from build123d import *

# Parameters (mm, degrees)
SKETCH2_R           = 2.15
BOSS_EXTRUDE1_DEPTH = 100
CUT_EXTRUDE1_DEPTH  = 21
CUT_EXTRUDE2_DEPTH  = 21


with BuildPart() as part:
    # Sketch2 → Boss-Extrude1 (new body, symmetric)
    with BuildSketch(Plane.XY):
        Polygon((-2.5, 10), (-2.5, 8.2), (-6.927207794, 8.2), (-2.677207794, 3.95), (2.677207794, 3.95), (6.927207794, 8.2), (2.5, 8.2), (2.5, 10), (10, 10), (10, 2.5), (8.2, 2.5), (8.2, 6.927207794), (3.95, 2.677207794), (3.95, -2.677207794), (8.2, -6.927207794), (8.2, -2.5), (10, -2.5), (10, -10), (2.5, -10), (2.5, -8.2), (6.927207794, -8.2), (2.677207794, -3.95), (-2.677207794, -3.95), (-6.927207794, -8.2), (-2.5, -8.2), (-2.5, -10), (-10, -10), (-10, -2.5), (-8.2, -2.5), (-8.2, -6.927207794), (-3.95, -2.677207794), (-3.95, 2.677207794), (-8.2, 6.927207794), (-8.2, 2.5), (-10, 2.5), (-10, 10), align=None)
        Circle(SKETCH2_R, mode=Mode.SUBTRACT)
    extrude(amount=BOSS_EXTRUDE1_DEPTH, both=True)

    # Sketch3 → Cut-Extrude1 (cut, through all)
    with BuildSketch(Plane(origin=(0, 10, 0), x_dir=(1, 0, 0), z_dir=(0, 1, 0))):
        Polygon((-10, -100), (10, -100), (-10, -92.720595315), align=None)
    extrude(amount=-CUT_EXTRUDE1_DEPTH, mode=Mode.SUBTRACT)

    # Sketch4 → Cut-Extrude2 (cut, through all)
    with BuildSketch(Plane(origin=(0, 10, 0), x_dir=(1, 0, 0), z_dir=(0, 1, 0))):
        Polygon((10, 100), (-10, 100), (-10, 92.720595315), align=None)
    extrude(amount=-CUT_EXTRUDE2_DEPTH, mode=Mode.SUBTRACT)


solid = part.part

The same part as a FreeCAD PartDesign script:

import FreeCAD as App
import Part
import Sketcher
Q = App.Units.Quantity

doc = App.newDocument("Part")
params = doc.addObject("Spreadsheet::Sheet", "Params")
for row, (alias, value) in enumerate([
    ("sketch1_diameter", "4.3 mm"),
    ("sketch1_width", "7.5 mm"),
    ("sketch1_width2", "1.8 mm"),
    ("pad1_length", "200 mm"),
    ("sketch2_width", "20 mm"),
    ("sketch3_width", "20 mm"),
], start=1):
    params.set(f"A{row}", alias)
    params.set(f"B{row}", "=" + value)
    params.setAlias(f"B{row}", alias)

body = doc.addObject("PartDesign::Body", "Body")

sketch1 = body.newObject("Sketcher::SketchObject", "Sketch")
sketch1.AttachmentSupport = (doc.getObject("XY_Plane"), [""])
sketch1.MapMode = "FlatFace"
sketch1.addGeometry([
    Part.LineSegment(App.Vector(-2.5, 8.2, 0), App.Vector(-2.5, 10, 0)),
    Part.LineSegment(App.Vector(-2.5, 10, 0), App.Vector(-10, 10, 0)),
    Part.LineSegment(App.Vector(-10, 10, 0), App.Vector(-10, 2.5, 0)),
    Part.LineSegment(App.Vector(-10, 2.5, 0), App.Vector(-8.2, 2.5, 0)),
    Part.LineSegment(App.Vector(-8.2, 2.5, 0), App.Vector(-8.2, 6.9, 0)),
    Part.LineSegment(App.Vector(-8.2, 6.9, 0), App.Vector(-4, 2.7, 0)),
    Part.LineSegment(App.Vector(-4, 2.7, 0), App.Vector(-4, -2.7, 0)),
    Part.LineSegment(App.Vector(-4, -2.7, 0), App.Vector(-8.2, -6.9, 0)),
    Part.LineSegment(App.Vector(-8.2, -6.9, 0), App.Vector(-8.2, -2.5, 0)),
    Part.LineSegment(App.Vector(-8.2, -2.5, 0), App.Vector(-10, -2.5, 0)),
    Part.LineSegment(App.Vector(-10, -2.5, 0), App.Vector(-10, -10, 0)),
    Part.LineSegment(App.Vector(-10, -10, 0), App.Vector(-2.5, -10, 0)),
    Part.LineSegment(App.Vector(-2.5, -10, 0), App.Vector(-2.5, -8.2, 0)),
    Part.LineSegment(App.Vector(-2.5, -8.2, 0), App.Vector(-6.9, -8.2, 0)),
    Part.LineSegment(App.Vector(-6.9, -8.2, 0), App.Vector(-2.7, -4, 0)),
    Part.LineSegment(App.Vector(-2.7, -4, 0), App.Vector(2.7, -4, 0)),
    Part.LineSegment(App.Vector(2.7, -4, 0), App.Vector(6.9, -8.2, 0)),
    Part.LineSegment(App.Vector(6.9, -8.2, 0), App.Vector(2.5, -8.2, 0)),
    Part.LineSegment(App.Vector(2.5, -8.2, 0), App.Vector(2.5, -10, 0)),
    Part.LineSegment(App.Vector(2.5, -10, 0), App.Vector(10, -10, 0)),
    Part.LineSegment(App.Vector(10, -10, 0), App.Vector(10, -2.5, 0)),
    Part.LineSegment(App.Vector(10, -2.5, 0), App.Vector(8.2, -2.5, 0)),
    Part.LineSegment(App.Vector(8.2, -2.5, 0), App.Vector(8.2, -6.9, 0)),
    Part.LineSegment(App.Vector(8.2, -6.9, 0), App.Vector(4, -2.7, 0)),
    Part.LineSegment(App.Vector(4, -2.7, 0), App.Vector(4, 2.7, 0)),
    Part.LineSegment(App.Vector(4, 2.7, 0), App.Vector(8.2, 6.9, 0)),
    Part.LineSegment(App.Vector(8.2, 6.9, 0), App.Vector(8.2, 2.5, 0)),
    Part.LineSegment(App.Vector(8.2, 2.5, 0), App.Vector(10, 2.5, 0)),
    Part.LineSegment(App.Vector(10, 2.5, 0), App.Vector(10, 10, 0)),
    Part.LineSegment(App.Vector(10, 10, 0), App.Vector(2.5, 10, 0)),
    Part.LineSegment(App.Vector(2.5, 10, 0), App.Vector(2.5, 8.2, 0)),
    Part.LineSegment(App.Vector(2.5, 8.2, 0), App.Vector(6.9, 8.2, 0)),
    Part.LineSegment(App.Vector(6.9, 8.2, 0), App.Vector(2.7, 4, 0)),
    Part.LineSegment(App.Vector(2.7, 4, 0), App.Vector(-2.7, 4, 0)),
    Part.LineSegment(App.Vector(-2.7, 4, 0), App.Vector(-6.9, 8.2, 0)),
    Part.LineSegment(App.Vector(-6.9, 8.2, 0), App.Vector(-2.5, 8.2, 0)),
    Part.Circle(App.Vector(0, 0, 0), App.Vector(0, 0, 1), 2.1),
], False)
sketch1.addConstraint([
    Sketcher.Constraint("Coincident", 0, 2, 1, 1),
    Sketcher.Constraint("Coincident", 1, 2, 2, 1),
    Sketcher.Constraint("Coincident", 2, 2, 3, 1),
    Sketcher.Constraint("Coincident", 3, 2, 4, 1),
    Sketcher.Constraint("Coincident", 4, 2, 5, 1),
    Sketcher.Constraint("Coincident", 5, 2, 6, 1),
    Sketcher.Constraint("Coincident", 6, 2, 7, 1),
    Sketcher.Constraint("Coincident", 7, 2, 8, 1),
    Sketcher.Constraint("Coincident", 8, 2, 9, 1),
    Sketcher.Constraint("Coincident", 9, 2, 10, 1),
    Sketcher.Constraint("Coincident", 10, 2, 11, 1),
    Sketcher.Constraint("Coincident", 11, 2, 12, 1),
    Sketcher.Constraint("Coincident", 12, 2, 13, 1),
    Sketcher.Constraint("Coincident", 13, 2, 14, 1),
    Sketcher.Constraint("Coincident", 14, 2, 15, 1),
    Sketcher.Constraint("Coincident", 15, 2, 16, 1),
    Sketcher.Constraint("Coincident", 16, 2, 17, 1),
    Sketcher.Constraint("Coincident", 17, 2, 18, 1),
    Sketcher.Constraint("Coincident", 18, 2, 19, 1),
    Sketcher.Constraint("Coincident", 19, 2, 20, 1),
    Sketcher.Constraint("Coincident", 20, 2, 21, 1),
    Sketcher.Constraint("Coincident", 21, 2, 22, 1),
    Sketcher.Constraint("Coincident", 22, 2, 23, 1),
    Sketcher.Constraint("Coincident", 23, 2, 24, 1),
    Sketcher.Constraint("Coincident", 24, 2, 25, 1),
    Sketcher.Constraint("Coincident", 25, 2, 26, 1),
    Sketcher.Constraint("Coincident", 26, 2, 27, 1),
    Sketcher.Constraint("Coincident", 27, 2, 28, 1),
    Sketcher.Constraint("Coincident", 28, 2, 29, 1),
    Sketcher.Constraint("Coincident", 29, 2, 30, 1),
    Sketcher.Constraint("Coincident", 30, 2, 31, 1),
    Sketcher.Constraint("Coincident", 31, 2, 32, 1),
    Sketcher.Constraint("Coincident", 32, 2, 33, 1),
    Sketcher.Constraint("Coincident", 33, 2, 34, 1),
    Sketcher.Constraint("Coincident", 34, 2, 35, 1),
    Sketcher.Constraint("Coincident", 35, 2, 0, 1),
    Sketcher.Constraint("Vertical", 0),
    Sketcher.Constraint("Horizontal", 1),
    Sketcher.Constraint("Vertical", 2),
    Sketcher.Constraint("Horizontal", 3),
    Sketcher.Constraint("Vertical", 4),
    Sketcher.Constraint("Vertical", 6),
    Sketcher.Constraint("Vertical", 8),
    Sketcher.Constraint("Horizontal", 9),
    Sketcher.Constraint("Vertical", 10),
    Sketcher.Constraint("Horizontal", 11),
    Sketcher.Constraint("Vertical", 12),
    Sketcher.Constraint("Horizontal", 13),
    Sketcher.Constraint("Horizontal", 15),
    Sketcher.Constraint("Horizontal", 17),
    Sketcher.Constraint("Vertical", 18),
    Sketcher.Constraint("Horizontal", 19),
    Sketcher.Constraint("Vertical", 20),
    Sketcher.Constraint("Horizontal", 21),
    Sketcher.Constraint("Vertical", 22),
    Sketcher.Constraint("Vertical", 24),
    Sketcher.Constraint("Vertical", 26),
    Sketcher.Constraint("Horizontal", 27),
    Sketcher.Constraint("Vertical", 28),
    Sketcher.Constraint("Horizontal", 29),
    Sketcher.Constraint("Vertical", 30),
    Sketcher.Constraint("Horizontal", 31),
    Sketcher.Constraint("Horizontal", 33),
    Sketcher.Constraint("Horizontal", 35),
    Sketcher.Constraint("Coincident", 36, 3, -1, 1),
    Sketcher.Constraint("Symmetric", 0, 2, 18, 2, -1, 1),
    Sketcher.Constraint("Symmetric", 2, 2, 20, 2, -1, 1),
    Sketcher.Constraint("Symmetric", 4, 2, 22, 2, -1, 1),
    Sketcher.Constraint("Symmetric", 5, 2, 23, 2, -1, 1),
    Sketcher.Constraint("Symmetric", 7, 2, 25, 2, -1, 1),
    Sketcher.Constraint("Symmetric", 9, 2, 27, 2, -1, 1),
    Sketcher.Constraint("Symmetric", 11, 2, 29, 2, -1, 1),
    Sketcher.Constraint("Symmetric", 13, 2, 31, 2, -1, 1),
    Sketcher.Constraint("Symmetric", 14, 2, 32, 2, -1, 1),
    Sketcher.Constraint("Symmetric", 16, 2, 34, 2, -1, 1),
    Sketcher.Constraint("Symmetric", 13, 2, 16, 2, -2),
    Sketcher.Constraint("Symmetric", 11, 2, 18, 2, -2),
    Sketcher.Constraint("Symmetric", 9, 2, 20, 2, -2),
    Sketcher.Constraint("Symmetric", 7, 2, 22, 2, -2),
    Sketcher.Constraint("Perpendicular", 5, 7),
    Sketcher.Constraint("Parallel", 7, 14),
    Sketcher.Constraint("Perpendicular", 14, 16),
    Sketcher.Constraint("Perpendicular", 23, 25),
    Sketcher.Constraint("Perpendicular", 32, 34),
    Sketcher.Constraint("Horizontal", 6, 2, 23, 2),
    Sketcher.Constraint("Equal", 27, 0),
    Sketcher.Constraint("Equal", 29, 2),
    Sketcher.Constraint("Equal", 35, 4),
    Sketcher.Constraint("Equal", 33, 6),
    Sketcher.Constraint("Equal", 7, 14),
    Sketcher.Constraint("Diameter", 36, Q("4.3 mm")),
    Sketcher.Constraint("DistanceX", 1, 2, 1, 1, Q("7.5 mm")),
    Sketcher.Constraint("DistanceX", 3, 1, 3, 2, Q("1.8 mm")),
    Sketcher.Constraint("DistanceY", -1, 1, 0, 2, Q("10 mm")),
    Sketcher.Constraint("DistanceX", 5, 2, 24, 2, Q("7.9 mm")),
    Sketcher.Constraint("DistanceX", 13, 2, 13, 1, Q("4.427208 mm")),
])
sketch1.setExpression("Constraints[90]", "Params.sketch1_diameter")
sketch1.setExpression("Constraints[91]", "Params.sketch1_width")
sketch1.setExpression("Constraints[92]", "Params.sketch1_width2")
pad1 = body.newObject("PartDesign::Pad", "Pad")
pad1.Profile = sketch1
pad1.setExpression("Length", "Params.pad1_length")
pad1.Midplane = True

sketch2 = body.newObject("Sketcher::SketchObject", "Sketch001")
sketch2.AttachmentSupport = (doc.getObject("XZ_Plane"), [""])
sketch2.MapMode = "FlatFace"
sketch2.AttachmentOffset = App.Placement(App.Vector(0, 0, -10), App.Rotation())
sketch2.addGeometry([
    Part.LineSegment(App.Vector(-10, 100, 0), App.Vector(10, 100, 0)),
    Part.LineSegment(App.Vector(10, 100, 0), App.Vector(-10, 93, 0)),
    Part.LineSegment(App.Vector(-10, 93, 0), App.Vector(-10, 100, 0)),
], False)
sketch2.addConstraint([
    Sketcher.Constraint("Coincident", 0, 2, 1, 1),
    Sketcher.Constraint("Coincident", 1, 2, 2, 1),
    Sketcher.Constraint("Coincident", 2, 2, 0, 1),
    Sketcher.Constraint("Horizontal", 0),
    Sketcher.Constraint("Vertical", 2),
    Sketcher.Constraint("DistanceX", 0, 1, 0, 2, Q("20 mm")),
    Sketcher.Constraint("Angle", 1, Q("-160 deg")),
    Sketcher.Constraint("DistanceX", -1, 1, 0, 2, Q("10 mm")),
    Sketcher.Constraint("DistanceY", -1, 1, 0, 2, Q("100 mm")),
])
sketch2.setExpression("Constraints[5]", "Params.sketch2_width")
pocket1 = body.newObject("PartDesign::Pocket", "Pocket")
pocket1.Profile = sketch2
pocket1.Type = "ThroughAll"
pocket1.Reversed = True

sketch3 = body.newObject("Sketcher::SketchObject", "Sketch002")
sketch3.AttachmentSupport = (doc.getObject("XZ_Plane"), [""])
sketch3.MapMode = "FlatFace"
sketch3.AttachmentOffset = App.Placement(App.Vector(0, 0, -10), App.Rotation())
sketch3.addGeometry([
    Part.LineSegment(App.Vector(10, -100, 0), App.Vector(-10, -100, 0)),
    Part.LineSegment(App.Vector(-10, -100, 0), App.Vector(-10, -93, 0)),
    Part.LineSegment(App.Vector(-10, -93, 0), App.Vector(10, -100, 0)),
], False)
sketch3.addConstraint([
    Sketcher.Constraint("Coincident", 0, 2, 1, 1),
    Sketcher.Constraint("Coincident", 1, 2, 2, 1),
    Sketcher.Constraint("Coincident", 2, 2, 0, 1),
    Sketcher.Constraint("Horizontal", 0),
    Sketcher.Constraint("Vertical", 1),
    Sketcher.Constraint("DistanceX", 0, 2, 0, 1, Q("20 mm")),
    Sketcher.Constraint("Angle", 2, Q("-20 deg")),
    Sketcher.Constraint("DistanceX", 0, 2, -1, 1, Q("10 mm")),
    Sketcher.Constraint("DistanceY", 0, 2, -1, 1, Q("100 mm")),
])
sketch3.setExpression("Constraints[5]", "Params.sketch3_width")
pocket2 = body.newObject("PartDesign::Pocket", "Pocket001")
pocket2.Profile = sketch3
pocket2.Type = "ThroughAll"
pocket2.Reversed = True

doc.recompute()
